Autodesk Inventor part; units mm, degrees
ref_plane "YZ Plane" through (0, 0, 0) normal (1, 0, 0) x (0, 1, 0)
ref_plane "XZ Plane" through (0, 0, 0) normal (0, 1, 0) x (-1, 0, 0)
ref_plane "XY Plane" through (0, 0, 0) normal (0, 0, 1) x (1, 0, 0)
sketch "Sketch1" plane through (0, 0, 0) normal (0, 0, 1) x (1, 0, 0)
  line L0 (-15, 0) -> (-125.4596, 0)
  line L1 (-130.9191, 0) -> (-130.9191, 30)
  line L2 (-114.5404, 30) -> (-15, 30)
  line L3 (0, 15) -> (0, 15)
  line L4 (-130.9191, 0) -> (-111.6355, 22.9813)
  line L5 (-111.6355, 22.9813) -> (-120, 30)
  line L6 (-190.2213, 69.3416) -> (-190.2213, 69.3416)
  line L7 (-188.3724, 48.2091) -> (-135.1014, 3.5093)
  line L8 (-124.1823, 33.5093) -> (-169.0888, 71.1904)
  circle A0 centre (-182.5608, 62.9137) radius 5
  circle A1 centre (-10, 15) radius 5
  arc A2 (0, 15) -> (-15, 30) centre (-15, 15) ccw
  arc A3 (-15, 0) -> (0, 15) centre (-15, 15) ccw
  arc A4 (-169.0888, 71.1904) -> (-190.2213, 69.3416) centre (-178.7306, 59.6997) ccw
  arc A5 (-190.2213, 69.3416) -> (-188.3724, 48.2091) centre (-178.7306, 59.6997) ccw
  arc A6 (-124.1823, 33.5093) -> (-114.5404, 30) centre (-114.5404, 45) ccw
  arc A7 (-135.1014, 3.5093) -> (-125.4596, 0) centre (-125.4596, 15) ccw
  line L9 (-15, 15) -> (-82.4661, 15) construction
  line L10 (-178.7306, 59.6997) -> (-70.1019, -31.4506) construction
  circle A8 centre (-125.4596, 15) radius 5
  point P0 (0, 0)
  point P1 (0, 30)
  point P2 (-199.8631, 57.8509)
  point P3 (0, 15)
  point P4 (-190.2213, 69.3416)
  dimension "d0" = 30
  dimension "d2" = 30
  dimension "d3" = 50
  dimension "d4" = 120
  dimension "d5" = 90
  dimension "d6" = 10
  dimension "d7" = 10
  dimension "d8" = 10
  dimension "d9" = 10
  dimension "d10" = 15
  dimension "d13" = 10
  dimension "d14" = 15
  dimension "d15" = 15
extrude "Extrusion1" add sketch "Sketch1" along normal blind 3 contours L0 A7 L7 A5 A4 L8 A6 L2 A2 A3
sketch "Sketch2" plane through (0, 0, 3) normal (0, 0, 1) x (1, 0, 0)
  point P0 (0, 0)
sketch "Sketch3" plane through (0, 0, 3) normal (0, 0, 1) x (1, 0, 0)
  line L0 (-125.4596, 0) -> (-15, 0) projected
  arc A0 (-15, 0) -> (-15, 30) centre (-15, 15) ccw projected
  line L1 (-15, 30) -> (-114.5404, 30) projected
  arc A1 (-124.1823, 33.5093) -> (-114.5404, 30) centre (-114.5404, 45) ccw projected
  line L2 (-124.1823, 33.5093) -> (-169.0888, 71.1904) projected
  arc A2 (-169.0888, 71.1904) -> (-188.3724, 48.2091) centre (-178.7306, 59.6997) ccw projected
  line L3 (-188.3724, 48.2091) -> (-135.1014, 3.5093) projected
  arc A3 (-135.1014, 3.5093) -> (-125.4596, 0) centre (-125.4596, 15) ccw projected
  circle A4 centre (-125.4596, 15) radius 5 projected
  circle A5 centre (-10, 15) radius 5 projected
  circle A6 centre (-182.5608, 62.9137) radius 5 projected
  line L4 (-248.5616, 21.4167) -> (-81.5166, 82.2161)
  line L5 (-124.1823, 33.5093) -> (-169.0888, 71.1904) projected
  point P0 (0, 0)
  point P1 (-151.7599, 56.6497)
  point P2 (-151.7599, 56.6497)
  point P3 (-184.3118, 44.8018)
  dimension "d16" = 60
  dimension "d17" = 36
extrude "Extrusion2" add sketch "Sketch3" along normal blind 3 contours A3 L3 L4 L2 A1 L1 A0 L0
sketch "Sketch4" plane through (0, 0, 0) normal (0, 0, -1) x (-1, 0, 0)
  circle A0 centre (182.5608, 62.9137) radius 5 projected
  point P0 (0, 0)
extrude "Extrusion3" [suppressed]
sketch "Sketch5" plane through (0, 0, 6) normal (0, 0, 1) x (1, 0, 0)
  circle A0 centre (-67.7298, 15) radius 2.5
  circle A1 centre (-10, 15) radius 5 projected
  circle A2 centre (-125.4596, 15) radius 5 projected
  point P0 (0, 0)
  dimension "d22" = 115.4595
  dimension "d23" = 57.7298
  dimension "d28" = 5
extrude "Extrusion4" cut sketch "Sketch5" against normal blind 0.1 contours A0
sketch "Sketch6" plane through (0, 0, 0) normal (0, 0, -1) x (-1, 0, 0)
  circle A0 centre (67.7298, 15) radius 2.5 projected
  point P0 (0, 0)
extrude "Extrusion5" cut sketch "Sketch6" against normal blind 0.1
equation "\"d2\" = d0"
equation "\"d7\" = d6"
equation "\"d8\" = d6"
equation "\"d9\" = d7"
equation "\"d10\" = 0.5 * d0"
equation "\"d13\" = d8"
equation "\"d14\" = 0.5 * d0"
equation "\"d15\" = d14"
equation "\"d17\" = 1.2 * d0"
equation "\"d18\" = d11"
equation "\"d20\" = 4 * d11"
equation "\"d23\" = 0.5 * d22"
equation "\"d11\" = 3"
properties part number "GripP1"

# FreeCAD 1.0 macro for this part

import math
import FreeCAD as App
import Part
import Sketcher

V = App.Vector
Q = App.Units.Quantity

doc = App.newDocument("Part")
params = doc.addObject("Spreadsheet::Sheet", "Params")
for row, (alias, value) in enumerate([
    ("sketch1_diameter", "10 mm"),
    ("sketch1_radius", "15 mm"),
    ("pad1_length", "3 mm"),
    ("sketch2_length", "36 mm"),
    ("sketch2_diameter", "10 mm"),
    ("sketch2_radius", "15 mm"),
    ("pad2_length", "3 mm"),
    ("sketch3_diameter", "5 mm"),
    ("pocket1_length", "0.1 mm"),
    ("sketch4_diameter", "5 mm"),
    ("pocket2_length", "0.1 mm"),
], start=1):
    params.set(f"A{row}", alias)
    params.set(f"B{row}", "=" + value)
    params.setAlias(f"B{row}", alias)

body = doc.addObject("PartDesign::Body", "Body")

# Sketch on XY plane
sketch1 = body.newObject("Sketcher::SketchObject", "Sketch")
sketch1.AttachmentSupport = (doc.getObject("XY_Plane"), [""])
sketch1.MapMode = "FlatFace"
sketch1.addGeometry([
    Part.LineSegment(V(-125, 0, 0), V(-15, 0, 0)),  # 0
    Part.ArcOfCircle(Part.Circle(V(-15, 15, 0), V(0, 0, 1), 15), math.radians(-90), math.radians(90)),  # 1
    Part.LineSegment(V(-15, 30, 0), V(-115, 30, 0)),  # 2
    Part.ArcOfCircle(Part.Circle(V(-115, 45, 0), V(0, 0, 1), 15), math.radians(-130), math.radians(-90)),  # 3
    Part.LineSegment(V(-124, 34, 0), V(-169, 71, 0)),  # 4
    Part.ArcOfCircle(Part.Circle(V(-179, 60, 0), V(0, 0, 1), 15), math.radians(50), math.radians(140)),  # 5
    Part.ArcOfCircle(Part.Circle(V(-179, 60, 0), V(0, 0, 1), 15), math.radians(140), math.radians(230)),  # 6
    Part.LineSegment(V(-188, 48, 0), V(-135, 4, 0)),  # 7
    Part.ArcOfCircle(Part.Circle(V(-125, 15, 0), V(0, 0, 1), 15), math.radians(-130), math.radians(-90)),  # 8
    Part.Circle(V(-125, 15, 0), V(0, 0, 1), 5),  # 9
    Part.Circle(V(-10, 15, 0), V(0, 0, 1), 5),  # 10
    Part.Circle(V(-183, 63, 0), V(0, 0, 1), 5),  # 11
], False)
sketch1.addConstraint([
    Sketcher.Constraint("Tangent", 0, 2, 1, 1),
    Sketcher.Constraint("Tangent", 1, 2, 2, 1),
    Sketcher.Constraint("Tangent", 2, 2, 3, 2),
    Sketcher.Constraint("Tangent", 3, 1, 4, 1),
    Sketcher.Constraint("Tangent", 4, 2, 5, 1),
    Sketcher.Constraint("Tangent", 5, 2, 6, 1),
    Sketcher.Constraint("Tangent", 6, 2, 7, 1),
    Sketcher.Constraint("Tangent", 7, 2, 8, 1),
    Sketcher.Constraint("Tangent", 8, 2, 0, 1),
    Sketcher.Constraint("Horizontal", 0),
    Sketcher.Constraint("Horizontal", 2),
    Sketcher.Constraint("Coincident", 9, 3, 8, 3),
    Sketcher.Constraint("Equal", 1, 3),
    Sketcher.Constraint("Equal", 3, 5),
    Sketcher.Constraint("Equal", 5, 6),
    Sketcher.Constraint("Equal", 6, 8),
    Sketcher.Constraint("Equal", 9, 10),
    Sketcher.Constraint("Equal", 10, 11),
    Sketcher.Constraint("PointOnObject", 0, 2, -1),
    Sketcher.Constraint("Parallel", 4, 7),
    Sketcher.Constraint("Horizontal", 9, 3, 10, 3),
    Sketcher.Constraint("Diameter", 9, Q("10 mm")),
    Sketcher.Constraint("Radius", 1, Q("15 mm")),
    Sketcher.Constraint("DistanceX", 1, 3, -1, 1, Q("15 mm")),
    Sketcher.Constraint("DistanceX", 10, 3, -1, 1, Q("10 mm")),
    Sketcher.Constraint("Angle", 4, Q("140 deg")),
    Sketcher.Constraint("DistanceX", 0, 1, 0, 2, Q("110.4596 mm")),
    Sketcher.Constraint("DistanceY", -1, 1, 6, 2, Q("48.209 mm")),
    Sketcher.Constraint("DistanceY", 5, 3, 11, 3, Q("3.214 mm")),
    Sketcher.Constraint("DistanceX", 11, 3, 4, 2, Q("13.472 mm")),
    Sketcher.Constraint("DistanceY", 11, 3, 5, 2, Q("6.428 mm")),
])
sketch1.setExpression("Constraints[21]", "Params.sketch1_diameter")
sketch1.setExpression("Constraints[22]", "Params.sketch1_radius")
pad1 = body.newObject("PartDesign::Pad", "Pad")
pad1.Profile = sketch1
pad1.setExpression("Length", "Params.pad1_length")

# Sketch on XY plane
sketch2 = body.newObject("Sketcher::SketchObject", "Sketch001")
sketch2.AttachmentSupport = (doc.getObject("XY_Plane"), [""])
sketch2.MapMode = "FlatFace"
sketch2.AttachmentOffset = App.Placement(V(0, 0, 3), App.Rotation())
sketch2.addGeometry([
    Part.ArcOfCircle(Part.Circle(V(-125, 15, 0), V(0, 0, 1), 15), math.radians(-130), math.radians(-90)),  # 0
    Part.LineSegment(V(-125, 0, 0), V(-15, 0, 0)),  # 1
    Part.ArcOfCircle(Part.Circle(V(-15, 15, 0), V(0, 0, 1), 15), math.radians(-90), math.radians(90)),  # 2
    Part.LineSegment(V(-15, 30, 0), V(-115, 30, 0)),  # 3
    Part.ArcOfCircle(Part.Circle(V(-115, 45, 0), V(0, 0, 1), 15), math.radians(-130), math.radians(-90)),  # 4
    Part.LineSegment(V(-124, 34, 0), V(-152, 57, 0)),  # 5
    Part.LineSegment(V(-152, 57, 0), V(-184, 45, 0)),  # 6
    Part.LineSegment(V(-184, 45, 0), V(-135, 4, 0)),  # 7
    Part.Circle(V(-125, 15, 0), V(0, 0, 1), 5),  # 8
    Part.Circle(V(-10, 15, 0), V(0, 0, 1), 5),  # 9
], False)
sketch2.addConstraint([
    Sketcher.Constraint("Tangent", 0, 2, 1, 1),
    Sketcher.Constraint("Tangent", 1, 2, 2, 1),
    Sketcher.Constraint("Tangent", 2, 2, 3, 1),
    Sketcher.Constraint("Tangent", 3, 2, 4, 2),
    Sketcher.Constraint("Tangent", 4, 1, 5, 1),
    Sketcher.Constraint("Coincident", 5, 2, 6, 1),
    Sketcher.Constraint("Coincident", 6, 2, 7, 1),
    Sketcher.Constraint("Tangent", 7, 2, 0, 1),
    Sketcher.Constraint("Horizontal", 1),
    Sketcher.Constraint("Horizontal", 3),
    Sketcher.Constraint("Coincident", 8, 3, 0, 3),
    Sketcher.Constraint("Equal", 0, 2),
    Sketcher.Constraint("Equal", 2, 4),
    Sketcher.Constraint("Equal", 8, 9),
    Sketcher.Constraint("PointOnObject", 0, 2, -1),
    Sketcher.Constraint("Parallel", 5, 7),
    Sketcher.Constraint("Horizontal", 8, 3, 9, 3),
    Sketcher.Constraint("Distance", 5, Q("36 mm")),
    Sketcher.Constraint("Diameter", 8, Q("10 mm")),
    Sketcher.Constraint("Radius", 0, Q("15 mm")),
    Sketcher.Constraint("Angle", 5, Q("140 deg")),
    Sketcher.Constraint("Angle", 6, Q("-160 deg")),
    Sketcher.Constraint("DistanceX", 2, 3, -1, 1, Q("15 mm")),
    Sketcher.Constraint("DistanceX", 9, 3, -1, 1, Q("10 mm")),
    Sketcher.Constraint("Distance", 6, Q("34.641 mm")),
    Sketcher.Constraint("DistanceX", 1, 1, 1, 2, Q("110.4596 mm")),
])
sketch2.setExpression("Constraints[17]", "Params.sketch2_length")
sketch2.setExpression("Constraints[18]", "Params.sketch2_diameter")
sketch2.setExpression("Constraints[19]", "Params.sketch2_radius")
pad2 = body.newObject("PartDesign::Pad", "Pad001")
pad2.Profile = sketch2
pad2.setExpression("Length", "Params.pad2_length")

# Sketch on XY plane
sketch3 = body.newObject("Sketcher::SketchObject", "Sketch002")
sketch3.AttachmentSupport = (doc.getObject("XY_Plane"), [""])
sketch3.MapMode = "FlatFace"
sketch3.AttachmentOffset = App.Placement(V(0, 0, 6), App.Rotation())
sketch3.addGeometry(Part.Circle(V(-67.7, 15, 0), V(0, 0, 1), 2.5), False)
sketch3.addConstraint([
    Sketcher.Constraint("Diameter", 0, Q("5 mm")),
    Sketcher.Constraint("DistanceY", -1, 1, 0, 3, Q("15 mm")),
    Sketcher.Constraint("DistanceX", 0, 3, -1, 1, Q("67.7298 mm")),
])
sketch3.setExpression("Constraints[0]", "Params.sketch3_diameter")
pocket1 = body.newObject("PartDesign::Pocket", "Pocket")
pocket1.Profile = sketch3
pocket1.setExpression("Length", "Params.pocket1_length")

# Sketch on XY plane
sketch4 = body.newObject("Sketcher::SketchObject", "Sketch003")
sketch4.AttachmentSupport = (doc.getObject("XY_Plane"), [""])
sketch4.MapMode = "FlatFace"
sketch4.addGeometry(Part.Circle(V(-67.7, 15, 0), V(0, 0, 1), 2.5), False)
sketch4.addConstraint([
    Sketcher.Constraint("Diameter", 0, Q("5 mm")),
    Sketcher.Constraint("DistanceY", -1, 1, 0, 3, Q("15 mm")),
    Sketcher.Constraint("DistanceX", 0, 3, -1, 1, Q("67.7298 mm")),
])
sketch4.setExpression("Constraints[0]", "Params.sketch4_diameter")
pocket2 = body.newObject("PartDesign::Pocket", "Pocket001")
pocket2.Profile = sketch4
pocket2.setExpression("Length", "Params.pocket2_length")
pocket2.Reversed = True

doc.recompute()
